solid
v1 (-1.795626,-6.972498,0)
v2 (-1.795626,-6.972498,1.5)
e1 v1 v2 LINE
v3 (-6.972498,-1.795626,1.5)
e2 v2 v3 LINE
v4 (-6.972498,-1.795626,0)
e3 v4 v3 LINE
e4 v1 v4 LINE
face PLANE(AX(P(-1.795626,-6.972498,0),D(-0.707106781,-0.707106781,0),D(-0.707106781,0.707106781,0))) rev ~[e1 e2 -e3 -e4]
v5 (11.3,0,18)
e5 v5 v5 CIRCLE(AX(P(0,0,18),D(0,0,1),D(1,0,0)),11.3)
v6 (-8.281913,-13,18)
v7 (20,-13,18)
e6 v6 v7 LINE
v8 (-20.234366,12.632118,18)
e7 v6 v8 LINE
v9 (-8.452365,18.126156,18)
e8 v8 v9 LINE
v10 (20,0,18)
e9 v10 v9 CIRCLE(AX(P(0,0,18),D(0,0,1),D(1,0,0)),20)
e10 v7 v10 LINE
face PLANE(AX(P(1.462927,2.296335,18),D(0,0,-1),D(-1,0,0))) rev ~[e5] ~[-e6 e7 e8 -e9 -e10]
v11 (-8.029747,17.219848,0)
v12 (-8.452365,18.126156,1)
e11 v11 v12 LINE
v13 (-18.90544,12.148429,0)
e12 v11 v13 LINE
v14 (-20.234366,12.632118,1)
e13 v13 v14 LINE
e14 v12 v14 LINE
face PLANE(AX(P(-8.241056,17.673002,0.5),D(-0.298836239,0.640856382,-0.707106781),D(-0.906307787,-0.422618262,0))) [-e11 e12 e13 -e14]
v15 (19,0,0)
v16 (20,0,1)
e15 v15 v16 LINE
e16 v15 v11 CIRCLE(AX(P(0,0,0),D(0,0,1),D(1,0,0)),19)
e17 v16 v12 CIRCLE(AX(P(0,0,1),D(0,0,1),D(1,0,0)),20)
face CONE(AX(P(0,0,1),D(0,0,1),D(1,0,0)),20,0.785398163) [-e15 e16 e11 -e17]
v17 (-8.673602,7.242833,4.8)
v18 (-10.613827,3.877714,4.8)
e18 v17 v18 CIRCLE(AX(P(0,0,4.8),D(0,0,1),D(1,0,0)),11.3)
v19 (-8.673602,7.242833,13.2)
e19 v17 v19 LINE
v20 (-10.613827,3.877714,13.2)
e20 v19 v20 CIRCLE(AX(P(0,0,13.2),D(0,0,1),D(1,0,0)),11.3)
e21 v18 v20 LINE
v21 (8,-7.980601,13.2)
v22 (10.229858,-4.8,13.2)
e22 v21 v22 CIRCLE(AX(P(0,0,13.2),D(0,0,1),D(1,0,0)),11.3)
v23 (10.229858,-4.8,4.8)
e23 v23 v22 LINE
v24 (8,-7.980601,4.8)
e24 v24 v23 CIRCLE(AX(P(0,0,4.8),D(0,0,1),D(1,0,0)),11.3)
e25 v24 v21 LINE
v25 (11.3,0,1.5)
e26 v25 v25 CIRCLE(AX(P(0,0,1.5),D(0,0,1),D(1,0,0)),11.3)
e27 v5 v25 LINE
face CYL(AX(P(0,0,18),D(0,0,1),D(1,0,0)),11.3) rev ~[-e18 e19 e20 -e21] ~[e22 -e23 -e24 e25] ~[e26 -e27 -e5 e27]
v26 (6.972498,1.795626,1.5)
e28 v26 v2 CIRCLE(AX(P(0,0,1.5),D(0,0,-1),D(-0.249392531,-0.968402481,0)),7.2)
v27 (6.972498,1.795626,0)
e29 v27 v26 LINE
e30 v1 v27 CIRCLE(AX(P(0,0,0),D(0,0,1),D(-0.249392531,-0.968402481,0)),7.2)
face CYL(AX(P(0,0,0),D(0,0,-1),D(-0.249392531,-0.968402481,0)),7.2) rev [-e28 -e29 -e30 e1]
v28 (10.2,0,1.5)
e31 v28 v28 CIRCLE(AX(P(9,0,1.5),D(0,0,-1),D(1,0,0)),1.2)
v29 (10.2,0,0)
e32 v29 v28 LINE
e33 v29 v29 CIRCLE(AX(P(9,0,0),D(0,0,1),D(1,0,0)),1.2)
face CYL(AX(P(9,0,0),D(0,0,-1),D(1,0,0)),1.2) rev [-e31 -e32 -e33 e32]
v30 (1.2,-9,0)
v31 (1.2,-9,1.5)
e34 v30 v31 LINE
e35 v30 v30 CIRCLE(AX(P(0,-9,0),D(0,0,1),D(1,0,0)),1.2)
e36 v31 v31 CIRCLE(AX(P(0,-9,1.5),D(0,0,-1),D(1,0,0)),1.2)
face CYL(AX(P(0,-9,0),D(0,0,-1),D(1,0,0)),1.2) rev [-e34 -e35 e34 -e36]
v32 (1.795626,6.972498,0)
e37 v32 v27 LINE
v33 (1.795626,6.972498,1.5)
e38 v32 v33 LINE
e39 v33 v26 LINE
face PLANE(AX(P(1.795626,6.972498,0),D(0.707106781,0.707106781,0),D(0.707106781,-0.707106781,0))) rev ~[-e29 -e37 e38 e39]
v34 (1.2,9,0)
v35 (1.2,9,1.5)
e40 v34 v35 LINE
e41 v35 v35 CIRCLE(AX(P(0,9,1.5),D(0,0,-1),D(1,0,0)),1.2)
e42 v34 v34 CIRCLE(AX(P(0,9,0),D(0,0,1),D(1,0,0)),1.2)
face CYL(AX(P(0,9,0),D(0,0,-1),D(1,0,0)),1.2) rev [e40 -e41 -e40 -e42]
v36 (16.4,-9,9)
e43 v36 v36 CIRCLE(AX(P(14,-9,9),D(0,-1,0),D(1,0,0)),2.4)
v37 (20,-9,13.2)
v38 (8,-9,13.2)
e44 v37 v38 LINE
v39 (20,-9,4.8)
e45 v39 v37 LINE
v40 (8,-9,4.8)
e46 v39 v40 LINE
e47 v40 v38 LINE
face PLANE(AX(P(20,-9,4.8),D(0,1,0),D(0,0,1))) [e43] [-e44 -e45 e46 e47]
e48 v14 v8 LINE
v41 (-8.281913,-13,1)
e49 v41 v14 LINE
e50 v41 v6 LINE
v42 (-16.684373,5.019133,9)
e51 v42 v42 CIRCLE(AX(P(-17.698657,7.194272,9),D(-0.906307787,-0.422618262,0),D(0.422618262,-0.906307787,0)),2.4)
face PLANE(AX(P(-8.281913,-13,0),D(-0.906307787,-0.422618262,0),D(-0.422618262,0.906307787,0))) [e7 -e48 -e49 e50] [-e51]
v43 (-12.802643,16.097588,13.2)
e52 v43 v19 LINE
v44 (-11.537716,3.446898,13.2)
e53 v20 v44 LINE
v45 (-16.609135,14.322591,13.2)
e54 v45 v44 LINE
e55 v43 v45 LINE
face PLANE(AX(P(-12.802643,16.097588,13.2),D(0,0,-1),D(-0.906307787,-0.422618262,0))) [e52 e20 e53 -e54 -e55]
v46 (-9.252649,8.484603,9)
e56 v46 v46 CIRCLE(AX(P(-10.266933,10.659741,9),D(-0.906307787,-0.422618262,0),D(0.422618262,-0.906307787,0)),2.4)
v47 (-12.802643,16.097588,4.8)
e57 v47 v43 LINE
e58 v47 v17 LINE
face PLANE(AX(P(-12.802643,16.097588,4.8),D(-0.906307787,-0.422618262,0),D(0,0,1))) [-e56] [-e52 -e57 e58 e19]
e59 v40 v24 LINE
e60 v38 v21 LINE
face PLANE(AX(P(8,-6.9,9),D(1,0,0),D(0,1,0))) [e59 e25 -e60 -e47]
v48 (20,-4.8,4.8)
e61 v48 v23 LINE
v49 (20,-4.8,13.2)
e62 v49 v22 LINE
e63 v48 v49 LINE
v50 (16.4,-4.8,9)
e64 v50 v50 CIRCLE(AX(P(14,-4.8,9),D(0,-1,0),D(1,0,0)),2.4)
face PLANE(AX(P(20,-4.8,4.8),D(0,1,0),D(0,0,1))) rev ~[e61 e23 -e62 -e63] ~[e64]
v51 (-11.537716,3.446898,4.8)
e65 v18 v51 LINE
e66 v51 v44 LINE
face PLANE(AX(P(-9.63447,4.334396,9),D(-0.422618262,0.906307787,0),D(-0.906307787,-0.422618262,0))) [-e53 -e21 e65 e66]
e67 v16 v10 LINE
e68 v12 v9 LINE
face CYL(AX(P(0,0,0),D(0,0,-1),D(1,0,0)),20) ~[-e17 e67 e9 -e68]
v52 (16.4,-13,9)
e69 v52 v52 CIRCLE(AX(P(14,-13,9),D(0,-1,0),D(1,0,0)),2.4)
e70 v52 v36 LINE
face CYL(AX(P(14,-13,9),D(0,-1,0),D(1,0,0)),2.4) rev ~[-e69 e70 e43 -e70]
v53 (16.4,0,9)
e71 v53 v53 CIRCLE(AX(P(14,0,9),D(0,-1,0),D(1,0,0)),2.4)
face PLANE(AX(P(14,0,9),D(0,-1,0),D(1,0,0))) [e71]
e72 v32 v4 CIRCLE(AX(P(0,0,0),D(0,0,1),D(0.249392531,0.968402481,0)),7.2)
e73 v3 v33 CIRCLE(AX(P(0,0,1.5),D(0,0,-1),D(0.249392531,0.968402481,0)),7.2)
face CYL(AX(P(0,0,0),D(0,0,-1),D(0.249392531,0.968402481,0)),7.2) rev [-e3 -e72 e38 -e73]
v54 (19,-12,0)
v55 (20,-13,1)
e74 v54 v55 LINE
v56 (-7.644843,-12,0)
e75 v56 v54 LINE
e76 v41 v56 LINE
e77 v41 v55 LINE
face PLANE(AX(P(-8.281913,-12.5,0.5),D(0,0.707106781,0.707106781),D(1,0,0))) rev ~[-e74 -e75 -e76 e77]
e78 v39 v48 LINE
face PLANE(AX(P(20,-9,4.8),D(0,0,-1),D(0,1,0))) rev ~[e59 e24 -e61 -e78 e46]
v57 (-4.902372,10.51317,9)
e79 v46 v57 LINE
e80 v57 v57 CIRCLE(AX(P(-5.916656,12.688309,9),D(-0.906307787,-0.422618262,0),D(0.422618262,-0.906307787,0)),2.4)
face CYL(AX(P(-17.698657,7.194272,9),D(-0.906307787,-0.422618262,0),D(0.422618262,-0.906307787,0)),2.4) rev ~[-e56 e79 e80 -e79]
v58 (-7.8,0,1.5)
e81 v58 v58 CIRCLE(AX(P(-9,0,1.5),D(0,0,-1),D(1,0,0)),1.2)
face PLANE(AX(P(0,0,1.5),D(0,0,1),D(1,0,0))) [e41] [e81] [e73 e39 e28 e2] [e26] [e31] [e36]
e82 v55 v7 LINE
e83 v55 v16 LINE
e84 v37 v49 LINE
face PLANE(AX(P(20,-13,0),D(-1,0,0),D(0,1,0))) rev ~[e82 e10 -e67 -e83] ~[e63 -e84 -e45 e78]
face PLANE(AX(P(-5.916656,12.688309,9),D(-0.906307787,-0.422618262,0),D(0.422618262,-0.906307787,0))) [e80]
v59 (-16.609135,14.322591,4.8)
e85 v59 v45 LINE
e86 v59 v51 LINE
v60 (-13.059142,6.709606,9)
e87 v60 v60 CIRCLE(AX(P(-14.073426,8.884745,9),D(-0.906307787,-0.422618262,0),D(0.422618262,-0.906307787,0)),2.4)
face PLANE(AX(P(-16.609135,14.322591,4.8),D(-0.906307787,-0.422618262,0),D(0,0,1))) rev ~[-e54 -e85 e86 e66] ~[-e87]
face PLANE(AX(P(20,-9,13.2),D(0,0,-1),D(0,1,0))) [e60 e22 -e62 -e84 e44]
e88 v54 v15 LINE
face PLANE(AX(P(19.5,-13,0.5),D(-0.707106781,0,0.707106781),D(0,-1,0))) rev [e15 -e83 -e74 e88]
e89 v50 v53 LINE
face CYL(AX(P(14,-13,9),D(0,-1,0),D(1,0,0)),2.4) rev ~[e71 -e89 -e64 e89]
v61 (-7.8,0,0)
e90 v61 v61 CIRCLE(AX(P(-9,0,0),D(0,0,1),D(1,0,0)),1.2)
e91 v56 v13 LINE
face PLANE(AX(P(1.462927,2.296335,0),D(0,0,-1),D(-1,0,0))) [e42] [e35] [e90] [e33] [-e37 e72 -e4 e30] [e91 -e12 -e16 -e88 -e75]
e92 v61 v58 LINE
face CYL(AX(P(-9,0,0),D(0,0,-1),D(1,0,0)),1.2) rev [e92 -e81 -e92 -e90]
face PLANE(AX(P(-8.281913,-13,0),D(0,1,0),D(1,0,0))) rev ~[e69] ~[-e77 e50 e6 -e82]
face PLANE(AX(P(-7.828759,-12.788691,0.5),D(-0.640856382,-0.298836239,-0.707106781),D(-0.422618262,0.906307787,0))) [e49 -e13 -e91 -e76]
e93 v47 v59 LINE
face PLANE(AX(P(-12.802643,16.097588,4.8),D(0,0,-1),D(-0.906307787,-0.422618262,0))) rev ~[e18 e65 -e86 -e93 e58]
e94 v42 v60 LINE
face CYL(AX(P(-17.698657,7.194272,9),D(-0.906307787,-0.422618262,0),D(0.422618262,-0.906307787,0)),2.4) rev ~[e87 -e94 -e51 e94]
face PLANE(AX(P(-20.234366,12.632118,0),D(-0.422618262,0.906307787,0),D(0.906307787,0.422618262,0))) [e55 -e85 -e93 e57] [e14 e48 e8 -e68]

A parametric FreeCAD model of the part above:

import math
import FreeCAD as App
import Part
import Sketcher

V = App.Vector
Q = App.Units.Quantity


def edges_at(feature, points):
    """Names of the edges that pass closest to the given points."""
    edges = feature.Shape.Edges
    near = lambda p: min(range(len(edges)), key=lambda i: edges[i].distToShape(Part.Vertex(*p))[0])
    return sorted({f"Edge{near(p) + 1}" for p in points})


def add_polygon(sketch, points):
    """Adds a closed chain of lines whose ends are joined by coincident constraints."""
    first, n = sketch.GeometryCount, len(points)
    for a, b in zip(points, points[1:] + points[:1]):
        sketch.addGeometry(Part.LineSegment(App.Vector(*a, 0), App.Vector(*b, 0)), False)
    for i in range(n):
        sketch.addConstraint(Sketcher.Constraint("Coincident", first + i, 2, first + (i + 1) % n, 1))

doc = App.newDocument("Part")
body = doc.addObject("PartDesign::Body", "Body")

# Sketch on XY plane
sketch1 = body.newObject("Sketcher::SketchObject", "Sketch")
sketch1.AttachmentSupport = (doc.getObject("XY_Plane"), [""])
sketch1.MapMode = "FlatFace"
sketch1.addGeometry([
    Part.LineSegment(V(-20.2, 12.6, 0), V(-8.3, -13, 0)),  # 0
    Part.LineSegment(V(-8.3, -13, 0), V(20, -13, 0)),  # 1
    Part.LineSegment(V(20, -13, 0), V(20, 0, 0)),  # 2
    Part.ArcOfCircle(Part.Circle(V(0, 0, 0), V(0, 0, 1), 20), math.radians(0), math.radians(115)),  # 3
    Part.LineSegment(V(-8.5, 18.1, 0), V(-20.2, 12.6, 0)),  # 4
    Part.Circle(V(0, -9, 0), V(0, 0, 1), 1.2),  # 5
    Part.Circle(V(9, 0, 0), V(0, 0, 1), 1.2),  # 6
    Part.Circle(V(-9, 0, 0), V(0, 0, 1), 1.2),  # 7
    Part.Circle(V(0, 9, 0), V(0, 0, 1), 1.2),  # 8
], False)
sketch1.addConstraint([
    Sketcher.Constraint("Coincident", 0, 2, 1, 1),
    Sketcher.Constraint("Coincident", 1, 2, 2, 1),
    Sketcher.Constraint("Tangent", 2, 2, 3, 1),
    Sketcher.Constraint("Tangent", 3, 2, 4, 1),
    Sketcher.Constraint("Coincident", 4, 2, 0, 1),
    Sketcher.Constraint("Horizontal", 1),
    Sketcher.Constraint("Vertical", 2),
    Sketcher.Constraint("Coincident", 3, 3, -1, 1),
    Sketcher.Constraint("Equal", 5, 6),
    Sketcher.Constraint("Equal", 6, 7),
    Sketcher.Constraint("Equal", 7, 8),
    Sketcher.Constraint("Symmetric", 6, 3, 7, 3, -1, 1),
    Sketcher.Constraint("Symmetric", 5, 3, 8, 3, -1, 1),
    Sketcher.Constraint("PointOnObject", 5, 3, -2),
    Sketcher.Constraint("PointOnObject", 6, 3, -1),
    Sketcher.Constraint("Perpendicular", 0, 4),
    Sketcher.Constraint("Radius", 3, Q("20 mm")),
    Sketcher.Constraint("Diameter", 5, Q("2.4 mm")),
    Sketcher.Constraint("DistanceY", 2, 1, 2, 2, Q("13 mm")),
    Sketcher.Constraint("Angle", 0, Q("-65 deg")),
    Sketcher.Constraint("Distance", 4, Q("13 mm")),
    Sketcher.Constraint("DistanceY", 5, 3, -1, 1, Q("9 mm")),
    Sketcher.Constraint("DistanceX", -1, 1, 6, 3, Q("9 mm")),
])
pad1 = body.newObject("PartDesign::Pad", "Pad")
pad1.Profile = sketch1
pad1.Length = 18

# Sketch on XY plane
sketch2 = body.newObject("Sketcher::SketchObject", "Sketch001")
sketch2.AttachmentSupport = (doc.getObject("XY_Plane"), [""])
sketch2.MapMode = "FlatFace"
sketch2.addGeometry([
    Part.LineSegment(V(-7, -2, 0), V(-2, -7, 0)),
    Part.ArcOfCircle(Part.Circle(V(0, 0, 0), V(0, 0, 1), 7), math.radians(-104), math.radians(14)),
    Part.LineSegment(V(7, 2, 0), V(2, 7, 0)),
    Part.ArcOfCircle(Part.Circle(V(0, 0, 0), V(0, 0, 1), 7), math.radians(76), math.radians(194)),
], False)
sketch2.addConstraint([
    Sketcher.Constraint("Coincident", 0, 2, 1, 1),
    Sketcher.Constraint("Coincident", 1, 2, 2, 1),
    Sketcher.Constraint("Coincident", 2, 2, 3, 1),
    Sketcher.Constraint("Coincident", 3, 2, 0, 1),
    Sketcher.Constraint("Coincident", 1, 3, -1, 1),
    Sketcher.Constraint("Coincident", 3, 3, -1, 1),
    Sketcher.Constraint("Equal", 1, 3),
    Sketcher.Constraint("Parallel", 0, 2),
    Sketcher.Constraint("Equal", 0, 2),
    Sketcher.Constraint("Radius", 1, Q("7.2 mm")),
    Sketcher.Constraint("Angle", 0, Q("-45 deg")),
    Sketcher.Constraint("DistanceX", 2, 2, 1, 2, Q("5.176872 mm")),
])
pocket1 = body.newObject("PartDesign::Pocket", "Pocket")
pocket1.Profile = sketch2
pocket1.Type = "ThroughAll"
pocket1.Midplane = True

# Sketch on XY plane
sketch3 = body.newObject("Sketcher::SketchObject", "Sketch002")
sketch3.AttachmentSupport = (doc.getObject("XY_Plane"), [""])
sketch3.MapMode = "FlatFace"
sketch3.AttachmentOffset = App.Placement(V(0, 0, 18), App.Rotation())
sketch3.addGeometry(Part.Circle(V(0, 0, 0), V(0, 0, 1), 11), False)
sketch3.addConstraint([
    Sketcher.Constraint("Coincident", 0, 3, -1, 1),
    Sketcher.Constraint("Diameter", 0, Q("22.6 mm")),
])
pocket2 = body.newObject("PartDesign::Pocket", "Pocket001")
pocket2.Profile = sketch3
pocket2.Length = 16.5

# Sketch on an angled plane
sketch4 = body.newObject("Sketcher::SketchObject", "Sketch003")
sketch4.Placement = App.Placement(V(-11.782001, -5.494037, 0), App.Rotation(V(0.422618262, -0.906307787, 0), V(0, 0, 1), V(-0.906307787, -0.422618262, 0), "ZXY"))
sketch4.addGeometry(Part.Circle(V(-14, 9, 0), V(0, 0, 1), 2.4), False)
sketch4.addConstraint([
    Sketcher.Constraint("Diameter", 0, Q("4.8 mm")),
    Sketcher.Constraint("DistanceX", 0, 3, -1, 1, Q("14 mm")),
    Sketcher.Constraint("DistanceY", -1, 1, 0, 3, Q("9 mm")),
])
pocket3 = body.newObject("PartDesign::Pocket", "Pocket002")
pocket3.Profile = sketch4
pocket3.Length = 13

# Sketch on XZ plane
sketch5 = body.newObject("Sketcher::SketchObject", "Sketch004")
sketch5.AttachmentSupport = (doc.getObject("XZ_Plane"), [""])
sketch5.MapMode = "FlatFace"
sketch5.AttachmentOffset = App.Placement(V(0, 0, 13), App.Rotation())
sketch5.addGeometry(Part.Circle(V(14, 9, 0), V(0, 0, 1), 2.4), False)
sketch5.addConstraint([
    Sketcher.Constraint("Diameter", 0, Q("4.8 mm")),
    Sketcher.Constraint("DistanceX", -1, 1, 0, 3, Q("14 mm")),
    Sketcher.Constraint("DistanceY", -1, 1, 0, 3, Q("9 mm")),
])
pocket4 = body.newObject("PartDesign::Pocket", "Pocket003")
pocket4.Profile = sketch5
pocket4.Length = 13

# Sketch on an angled plane
sketch6 = body.newObject("Sketcher::SketchObject", "Sketch005")
sketch6.Placement = App.Placement(V(-8.452365, 18.126156, 0), App.Rotation(V(-0.906307787, -0.422618262, 0), V(0, 0, 1), V(-0.422618262, 0.906307787, 0), "ZXY"))
add_polygon(sketch6, [(4.8, 13.2), (4.8, 4.8), (9, 4.8), (9, 13.2)])  # lines 0-3
sketch6.addConstraint([
    Sketcher.Constraint("Vertical", 0),
    Sketcher.Constraint("Horizontal", 1),
    Sketcher.Constraint("Vertical", 2),
    Sketcher.Constraint("Horizontal", 3),
    Sketcher.Constraint("DistanceX", 1, 1, 1, 2, Q("4.2 mm")),
    Sketcher.Constraint("DistanceY", 0, 2, 0, 1, Q("8.4 mm")),
    Sketcher.Constraint("DistanceX", -1, 1, 1, 2, Q("9 mm")),
    Sketcher.Constraint("DistanceY", -1, 1, 0, 2, Q("4.8 mm")),
])
pocket5 = body.newObject("PartDesign::Pocket", "Pocket004")
pocket5.Profile = sketch6
pocket5.Length = 12

# Sketch on YZ plane
sketch7 = body.newObject("Sketcher::SketchObject", "Sketch006")
sketch7.AttachmentSupport = (doc.getObject("YZ_Plane"), [""])
sketch7.MapMode = "FlatFace"
sketch7.AttachmentOffset = App.Placement(V(0, 0, 20), App.Rotation())
add_polygon(sketch7, [(-9, 13.2), (-9, 4.8), (-4.8, 4.8), (-4.8, 13.2)])  # lines 0-3
sketch7.addConstraint([
    Sketcher.Constraint("Vertical", 0),
    Sketcher.Constraint("Horizontal", 1),
    Sketcher.Constraint("Vertical", 2),
    Sketcher.Constraint("Horizontal", 3),
    Sketcher.Constraint("DistanceX", 1, 1, 1, 2, Q("4.2 mm")),
    Sketcher.Constraint("DistanceY", 0, 2, 0, 1, Q("8.4 mm")),
    Sketcher.Constraint("DistanceX", 0, 2, -1, 1, Q("9 mm")),
    Sketcher.Constraint("DistanceY", -1, 1, 0, 2, Q("4.8 mm")),
])
pocket6 = body.newObject("PartDesign::Pocket", "Pocket005")
pocket6.Profile = sketch7
pocket6.Length = 12
doc.recompute()

chamfer = body.newObject("PartDesign::Chamfer", "Chamfer")
chamfer.Base = (pocket6, edges_at(pocket6, [
    (20, -6.5, 0),
    (10.746, 16.868, 0),
    (5.859, -13, 0),
    (-14.258, -0.184, 0),
    (-14.343, 15.379, 0),
]))
chamfer.Size = 1

doc.recompute()
